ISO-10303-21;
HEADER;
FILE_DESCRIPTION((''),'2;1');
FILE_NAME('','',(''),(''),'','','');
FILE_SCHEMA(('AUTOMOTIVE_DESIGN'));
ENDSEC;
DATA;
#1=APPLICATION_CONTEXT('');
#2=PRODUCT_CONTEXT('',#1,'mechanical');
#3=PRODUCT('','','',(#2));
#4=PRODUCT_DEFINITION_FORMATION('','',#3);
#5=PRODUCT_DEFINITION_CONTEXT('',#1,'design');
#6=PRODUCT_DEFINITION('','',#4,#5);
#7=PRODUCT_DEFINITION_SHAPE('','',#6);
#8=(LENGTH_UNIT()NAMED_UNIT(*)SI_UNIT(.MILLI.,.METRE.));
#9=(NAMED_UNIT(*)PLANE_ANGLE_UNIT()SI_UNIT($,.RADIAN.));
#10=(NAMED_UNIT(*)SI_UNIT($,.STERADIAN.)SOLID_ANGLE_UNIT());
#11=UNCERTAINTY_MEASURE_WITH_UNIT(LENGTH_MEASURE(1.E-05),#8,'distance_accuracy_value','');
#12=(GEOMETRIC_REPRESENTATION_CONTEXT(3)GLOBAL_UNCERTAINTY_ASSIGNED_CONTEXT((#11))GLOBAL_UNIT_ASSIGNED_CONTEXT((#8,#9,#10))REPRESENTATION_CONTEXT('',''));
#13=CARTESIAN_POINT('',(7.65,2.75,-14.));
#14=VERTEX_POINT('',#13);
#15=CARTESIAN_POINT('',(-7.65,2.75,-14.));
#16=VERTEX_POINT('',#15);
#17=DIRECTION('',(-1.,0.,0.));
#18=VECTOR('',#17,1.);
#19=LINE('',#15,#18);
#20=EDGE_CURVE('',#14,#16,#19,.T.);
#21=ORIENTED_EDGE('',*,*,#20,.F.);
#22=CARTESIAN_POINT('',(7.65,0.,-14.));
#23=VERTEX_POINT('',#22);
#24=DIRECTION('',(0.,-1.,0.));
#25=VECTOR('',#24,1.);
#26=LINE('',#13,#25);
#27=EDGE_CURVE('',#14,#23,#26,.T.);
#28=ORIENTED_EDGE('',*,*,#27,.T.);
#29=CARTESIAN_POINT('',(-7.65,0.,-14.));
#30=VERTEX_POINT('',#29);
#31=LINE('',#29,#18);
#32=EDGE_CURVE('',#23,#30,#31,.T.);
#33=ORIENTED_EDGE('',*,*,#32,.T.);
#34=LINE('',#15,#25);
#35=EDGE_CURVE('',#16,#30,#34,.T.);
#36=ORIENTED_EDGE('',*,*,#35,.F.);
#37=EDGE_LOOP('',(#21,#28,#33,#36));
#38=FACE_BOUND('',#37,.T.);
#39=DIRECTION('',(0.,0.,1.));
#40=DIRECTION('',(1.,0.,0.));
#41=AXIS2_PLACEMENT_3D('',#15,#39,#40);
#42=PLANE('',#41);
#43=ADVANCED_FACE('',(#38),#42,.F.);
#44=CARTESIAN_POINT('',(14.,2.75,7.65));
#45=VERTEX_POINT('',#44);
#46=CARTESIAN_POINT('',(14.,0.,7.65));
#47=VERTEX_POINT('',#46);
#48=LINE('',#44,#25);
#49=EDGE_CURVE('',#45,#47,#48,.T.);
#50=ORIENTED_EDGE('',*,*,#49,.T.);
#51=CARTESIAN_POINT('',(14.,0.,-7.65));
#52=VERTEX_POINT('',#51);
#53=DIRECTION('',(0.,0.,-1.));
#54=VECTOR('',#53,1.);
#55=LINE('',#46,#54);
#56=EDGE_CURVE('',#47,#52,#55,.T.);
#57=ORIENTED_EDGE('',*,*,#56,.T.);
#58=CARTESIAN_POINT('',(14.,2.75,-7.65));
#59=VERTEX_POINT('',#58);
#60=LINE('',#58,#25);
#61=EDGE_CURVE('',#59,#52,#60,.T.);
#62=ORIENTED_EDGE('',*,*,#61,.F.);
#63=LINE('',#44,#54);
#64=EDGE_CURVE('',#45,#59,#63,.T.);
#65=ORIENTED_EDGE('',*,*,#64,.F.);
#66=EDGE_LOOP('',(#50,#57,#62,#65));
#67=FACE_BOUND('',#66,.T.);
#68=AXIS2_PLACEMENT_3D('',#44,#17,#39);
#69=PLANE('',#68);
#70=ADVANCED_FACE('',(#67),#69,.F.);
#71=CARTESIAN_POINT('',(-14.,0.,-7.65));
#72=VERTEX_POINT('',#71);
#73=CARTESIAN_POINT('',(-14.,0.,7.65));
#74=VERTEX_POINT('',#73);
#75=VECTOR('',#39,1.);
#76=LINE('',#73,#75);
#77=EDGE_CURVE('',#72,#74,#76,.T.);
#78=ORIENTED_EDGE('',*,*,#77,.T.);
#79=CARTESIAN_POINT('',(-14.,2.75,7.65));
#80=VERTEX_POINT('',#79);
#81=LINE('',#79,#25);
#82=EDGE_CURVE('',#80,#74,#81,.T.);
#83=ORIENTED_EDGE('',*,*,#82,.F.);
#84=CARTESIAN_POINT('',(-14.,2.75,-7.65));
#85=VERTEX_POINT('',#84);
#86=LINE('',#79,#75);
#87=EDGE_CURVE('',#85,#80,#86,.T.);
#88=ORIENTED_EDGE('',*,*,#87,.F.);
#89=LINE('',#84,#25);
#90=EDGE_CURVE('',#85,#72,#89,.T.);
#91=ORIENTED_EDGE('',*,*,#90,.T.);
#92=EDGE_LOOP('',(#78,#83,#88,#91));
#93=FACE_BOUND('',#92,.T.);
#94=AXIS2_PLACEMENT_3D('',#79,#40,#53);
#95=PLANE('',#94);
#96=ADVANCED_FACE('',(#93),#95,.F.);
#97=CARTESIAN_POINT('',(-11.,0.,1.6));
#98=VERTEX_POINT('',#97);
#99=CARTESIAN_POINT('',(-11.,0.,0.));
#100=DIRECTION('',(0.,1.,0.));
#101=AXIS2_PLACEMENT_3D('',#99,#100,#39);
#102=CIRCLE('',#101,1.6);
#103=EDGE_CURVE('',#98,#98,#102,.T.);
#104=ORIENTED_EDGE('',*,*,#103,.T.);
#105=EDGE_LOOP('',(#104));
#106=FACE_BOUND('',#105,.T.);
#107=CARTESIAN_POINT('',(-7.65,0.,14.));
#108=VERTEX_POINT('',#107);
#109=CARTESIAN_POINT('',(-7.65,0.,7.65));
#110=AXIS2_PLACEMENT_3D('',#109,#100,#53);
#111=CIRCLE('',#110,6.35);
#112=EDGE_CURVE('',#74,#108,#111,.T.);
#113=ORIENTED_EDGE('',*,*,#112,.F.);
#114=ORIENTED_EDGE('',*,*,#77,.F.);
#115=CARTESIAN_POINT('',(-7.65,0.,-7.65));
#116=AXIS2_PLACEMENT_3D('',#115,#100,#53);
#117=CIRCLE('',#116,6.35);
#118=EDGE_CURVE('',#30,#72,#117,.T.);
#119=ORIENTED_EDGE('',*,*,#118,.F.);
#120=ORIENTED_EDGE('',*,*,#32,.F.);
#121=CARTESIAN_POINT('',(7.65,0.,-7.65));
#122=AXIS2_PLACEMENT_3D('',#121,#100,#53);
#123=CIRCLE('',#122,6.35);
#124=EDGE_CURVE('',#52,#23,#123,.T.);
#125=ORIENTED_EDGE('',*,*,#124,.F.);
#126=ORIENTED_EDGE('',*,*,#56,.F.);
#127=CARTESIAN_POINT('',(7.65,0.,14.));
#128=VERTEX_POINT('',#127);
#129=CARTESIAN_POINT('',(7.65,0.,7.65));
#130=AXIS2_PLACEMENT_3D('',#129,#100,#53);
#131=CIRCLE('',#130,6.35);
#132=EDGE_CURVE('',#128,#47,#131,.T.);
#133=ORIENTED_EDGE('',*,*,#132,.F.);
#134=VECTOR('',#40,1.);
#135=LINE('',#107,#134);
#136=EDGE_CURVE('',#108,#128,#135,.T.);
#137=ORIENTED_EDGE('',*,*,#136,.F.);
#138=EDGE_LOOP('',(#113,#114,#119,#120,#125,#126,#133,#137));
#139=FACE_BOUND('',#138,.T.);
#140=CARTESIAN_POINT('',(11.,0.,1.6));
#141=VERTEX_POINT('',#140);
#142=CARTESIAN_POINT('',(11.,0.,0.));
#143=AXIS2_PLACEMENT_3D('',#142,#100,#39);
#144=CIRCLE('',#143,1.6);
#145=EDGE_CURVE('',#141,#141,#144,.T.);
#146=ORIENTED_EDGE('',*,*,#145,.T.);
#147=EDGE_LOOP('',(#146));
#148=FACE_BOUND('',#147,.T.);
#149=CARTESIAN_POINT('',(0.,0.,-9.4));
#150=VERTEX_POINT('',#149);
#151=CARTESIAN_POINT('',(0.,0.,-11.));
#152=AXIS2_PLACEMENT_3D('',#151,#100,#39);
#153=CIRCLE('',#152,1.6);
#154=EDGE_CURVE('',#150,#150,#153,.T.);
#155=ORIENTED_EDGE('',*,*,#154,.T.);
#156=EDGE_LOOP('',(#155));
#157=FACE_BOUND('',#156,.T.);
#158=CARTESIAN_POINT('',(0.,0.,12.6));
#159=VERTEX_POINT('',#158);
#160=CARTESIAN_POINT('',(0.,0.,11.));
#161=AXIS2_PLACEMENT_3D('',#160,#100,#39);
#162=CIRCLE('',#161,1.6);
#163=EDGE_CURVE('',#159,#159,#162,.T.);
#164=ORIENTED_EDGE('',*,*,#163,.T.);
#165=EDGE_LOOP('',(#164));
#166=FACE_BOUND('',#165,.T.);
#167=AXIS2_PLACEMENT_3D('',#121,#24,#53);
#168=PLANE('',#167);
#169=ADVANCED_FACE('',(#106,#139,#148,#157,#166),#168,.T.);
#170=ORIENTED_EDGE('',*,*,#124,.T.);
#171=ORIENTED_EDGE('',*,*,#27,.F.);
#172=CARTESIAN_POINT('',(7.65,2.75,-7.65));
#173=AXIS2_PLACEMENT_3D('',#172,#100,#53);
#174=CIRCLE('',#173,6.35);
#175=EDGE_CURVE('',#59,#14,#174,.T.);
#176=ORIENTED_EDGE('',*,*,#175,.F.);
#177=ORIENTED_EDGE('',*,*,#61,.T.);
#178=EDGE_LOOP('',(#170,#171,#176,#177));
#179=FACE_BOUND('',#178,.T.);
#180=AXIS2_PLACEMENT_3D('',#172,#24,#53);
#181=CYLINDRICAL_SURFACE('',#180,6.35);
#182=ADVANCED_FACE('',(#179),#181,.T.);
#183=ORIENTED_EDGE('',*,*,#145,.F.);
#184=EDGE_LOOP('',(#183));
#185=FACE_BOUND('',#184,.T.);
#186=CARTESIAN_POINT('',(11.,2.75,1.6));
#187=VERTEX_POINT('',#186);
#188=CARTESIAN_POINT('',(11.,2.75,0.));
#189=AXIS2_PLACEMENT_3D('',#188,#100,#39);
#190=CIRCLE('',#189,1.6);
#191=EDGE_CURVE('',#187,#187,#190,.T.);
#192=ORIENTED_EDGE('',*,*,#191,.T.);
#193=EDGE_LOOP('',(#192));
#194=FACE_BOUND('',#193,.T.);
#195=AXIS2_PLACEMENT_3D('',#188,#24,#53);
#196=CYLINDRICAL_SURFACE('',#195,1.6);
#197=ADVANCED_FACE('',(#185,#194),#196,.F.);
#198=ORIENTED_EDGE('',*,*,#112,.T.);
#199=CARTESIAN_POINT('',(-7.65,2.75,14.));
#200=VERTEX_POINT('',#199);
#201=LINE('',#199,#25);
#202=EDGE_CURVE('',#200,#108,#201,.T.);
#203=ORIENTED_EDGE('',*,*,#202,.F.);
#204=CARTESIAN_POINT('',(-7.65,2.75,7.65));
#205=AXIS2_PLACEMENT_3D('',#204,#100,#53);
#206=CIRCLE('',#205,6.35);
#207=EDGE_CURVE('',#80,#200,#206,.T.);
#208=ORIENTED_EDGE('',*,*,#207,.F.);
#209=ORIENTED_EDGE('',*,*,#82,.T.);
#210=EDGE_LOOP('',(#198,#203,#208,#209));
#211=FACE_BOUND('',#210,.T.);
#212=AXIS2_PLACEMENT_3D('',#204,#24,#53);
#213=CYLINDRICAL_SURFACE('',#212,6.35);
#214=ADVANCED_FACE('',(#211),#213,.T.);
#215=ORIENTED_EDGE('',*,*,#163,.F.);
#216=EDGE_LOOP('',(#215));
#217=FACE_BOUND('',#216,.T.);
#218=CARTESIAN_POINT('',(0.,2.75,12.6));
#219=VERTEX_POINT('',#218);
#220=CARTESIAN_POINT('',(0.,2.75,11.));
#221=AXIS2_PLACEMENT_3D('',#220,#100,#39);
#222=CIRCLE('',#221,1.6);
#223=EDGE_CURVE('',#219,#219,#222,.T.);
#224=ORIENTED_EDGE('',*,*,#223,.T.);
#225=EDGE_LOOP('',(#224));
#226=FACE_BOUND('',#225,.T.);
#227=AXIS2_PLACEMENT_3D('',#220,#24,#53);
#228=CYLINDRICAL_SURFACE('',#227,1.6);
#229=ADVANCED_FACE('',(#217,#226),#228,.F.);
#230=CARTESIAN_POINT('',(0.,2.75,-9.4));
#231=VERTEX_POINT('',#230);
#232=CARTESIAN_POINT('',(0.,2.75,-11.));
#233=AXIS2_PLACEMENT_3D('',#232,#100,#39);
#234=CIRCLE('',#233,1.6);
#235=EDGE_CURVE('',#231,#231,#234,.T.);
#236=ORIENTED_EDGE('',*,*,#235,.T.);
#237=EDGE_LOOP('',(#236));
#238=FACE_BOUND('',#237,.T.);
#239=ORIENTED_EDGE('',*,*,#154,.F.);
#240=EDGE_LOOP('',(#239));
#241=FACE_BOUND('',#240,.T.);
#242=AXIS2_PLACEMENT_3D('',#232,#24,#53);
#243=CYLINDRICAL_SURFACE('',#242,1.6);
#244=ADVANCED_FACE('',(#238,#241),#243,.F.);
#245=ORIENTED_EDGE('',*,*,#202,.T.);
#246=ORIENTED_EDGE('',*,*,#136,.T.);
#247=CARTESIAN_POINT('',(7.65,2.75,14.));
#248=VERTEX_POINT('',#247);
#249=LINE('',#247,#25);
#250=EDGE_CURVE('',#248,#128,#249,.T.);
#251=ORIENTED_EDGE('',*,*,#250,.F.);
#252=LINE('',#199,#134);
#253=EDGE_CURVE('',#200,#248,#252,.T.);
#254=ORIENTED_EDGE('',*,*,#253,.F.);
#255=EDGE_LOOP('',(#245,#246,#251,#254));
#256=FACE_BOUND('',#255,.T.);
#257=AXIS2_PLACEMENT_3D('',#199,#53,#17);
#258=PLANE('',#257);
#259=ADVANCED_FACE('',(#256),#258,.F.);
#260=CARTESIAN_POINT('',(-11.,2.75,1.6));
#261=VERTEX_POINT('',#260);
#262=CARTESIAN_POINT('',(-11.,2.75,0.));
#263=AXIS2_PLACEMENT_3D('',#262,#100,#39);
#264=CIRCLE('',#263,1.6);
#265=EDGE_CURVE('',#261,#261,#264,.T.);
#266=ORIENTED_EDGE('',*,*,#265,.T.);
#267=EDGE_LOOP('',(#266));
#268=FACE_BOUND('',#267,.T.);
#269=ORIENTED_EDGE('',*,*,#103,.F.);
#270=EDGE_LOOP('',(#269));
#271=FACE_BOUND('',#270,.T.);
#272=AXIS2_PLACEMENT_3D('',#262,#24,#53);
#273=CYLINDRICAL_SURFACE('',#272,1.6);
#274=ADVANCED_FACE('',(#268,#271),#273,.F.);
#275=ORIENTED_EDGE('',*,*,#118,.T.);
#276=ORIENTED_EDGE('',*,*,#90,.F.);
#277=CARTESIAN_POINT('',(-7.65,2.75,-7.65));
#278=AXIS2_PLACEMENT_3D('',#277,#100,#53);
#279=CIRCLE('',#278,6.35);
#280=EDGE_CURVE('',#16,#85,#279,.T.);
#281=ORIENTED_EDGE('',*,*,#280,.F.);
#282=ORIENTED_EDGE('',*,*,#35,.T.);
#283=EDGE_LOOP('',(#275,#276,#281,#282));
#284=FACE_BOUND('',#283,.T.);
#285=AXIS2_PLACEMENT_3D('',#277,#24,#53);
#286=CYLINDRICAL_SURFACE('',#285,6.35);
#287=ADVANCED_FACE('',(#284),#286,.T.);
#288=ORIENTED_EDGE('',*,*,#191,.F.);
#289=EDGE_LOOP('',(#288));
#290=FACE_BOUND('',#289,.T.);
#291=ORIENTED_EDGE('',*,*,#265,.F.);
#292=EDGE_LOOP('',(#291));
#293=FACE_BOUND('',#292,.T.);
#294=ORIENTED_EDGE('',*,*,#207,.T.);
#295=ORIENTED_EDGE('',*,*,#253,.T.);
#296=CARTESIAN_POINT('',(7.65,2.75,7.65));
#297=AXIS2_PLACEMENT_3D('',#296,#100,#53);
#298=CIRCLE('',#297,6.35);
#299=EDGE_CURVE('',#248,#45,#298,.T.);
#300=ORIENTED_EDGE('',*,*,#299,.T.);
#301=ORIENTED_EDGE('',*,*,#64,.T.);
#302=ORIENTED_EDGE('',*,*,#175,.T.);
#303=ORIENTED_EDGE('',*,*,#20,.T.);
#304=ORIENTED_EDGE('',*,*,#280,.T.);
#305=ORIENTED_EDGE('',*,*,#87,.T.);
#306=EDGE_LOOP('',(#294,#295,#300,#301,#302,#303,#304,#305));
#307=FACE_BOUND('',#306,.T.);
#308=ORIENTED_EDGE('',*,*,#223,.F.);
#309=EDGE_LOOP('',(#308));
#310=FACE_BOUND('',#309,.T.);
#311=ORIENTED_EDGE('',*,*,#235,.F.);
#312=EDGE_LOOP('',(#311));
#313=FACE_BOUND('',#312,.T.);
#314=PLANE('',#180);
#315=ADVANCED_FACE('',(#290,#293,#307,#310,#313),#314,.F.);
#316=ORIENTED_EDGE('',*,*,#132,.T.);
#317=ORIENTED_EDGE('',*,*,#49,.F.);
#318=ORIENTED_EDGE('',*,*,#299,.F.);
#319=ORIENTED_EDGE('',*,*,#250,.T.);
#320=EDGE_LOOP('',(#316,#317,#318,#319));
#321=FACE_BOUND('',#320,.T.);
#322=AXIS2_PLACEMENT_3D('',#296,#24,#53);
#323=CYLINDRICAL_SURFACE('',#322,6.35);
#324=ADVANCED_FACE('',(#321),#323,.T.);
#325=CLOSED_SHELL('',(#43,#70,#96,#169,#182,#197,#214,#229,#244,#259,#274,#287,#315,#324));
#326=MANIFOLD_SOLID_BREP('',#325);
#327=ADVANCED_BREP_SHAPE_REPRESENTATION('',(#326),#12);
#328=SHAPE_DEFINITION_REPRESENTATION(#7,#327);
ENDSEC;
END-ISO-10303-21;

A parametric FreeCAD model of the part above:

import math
import FreeCAD as App
import Part
import Sketcher

doc = App.newDocument("Part")
body = doc.addObject("PartDesign::Body", "Body")

sketch1 = doc.addObject("Sketcher::SketchObject", "Sketch")
body.addObject(sketch1)
sketch1.AttachmentSupport = (doc.XZ_Plane, [""])
sketch1.MapMode = "FlatFace"
sketch1.addGeometry(Part.LineSegment(App.Vector(-7.7, 14, 0), App.Vector(7.7, 14, 0)), False)
sketch1.addGeometry(Part.ArcOfCircle(Part.Circle(App.Vector(7.7, 7.7, 0), App.Vector(0, 0, 1), 6.3), math.radians(0), math.radians(90)), False)
sketch1.addGeometry(Part.LineSegment(App.Vector(14, 7.7, 0), App.Vector(14, -7.7, 0)), False)
sketch1.addGeometry(Part.ArcOfCircle(Part.Circle(App.Vector(7.7, -7.7, 0), App.Vector(0, 0, 1), 6.3), math.radians(-90), math.radians(0)), False)
sketch1.addGeometry(Part.LineSegment(App.Vector(7.7, -14, 0), App.Vector(-7.7, -14, 0)), False)
sketch1.addGeometry(Part.ArcOfCircle(Part.Circle(App.Vector(-7.7, -7.7, 0), App.Vector(0, 0, 1), 6.3), math.radians(180), math.radians(270)), False)
sketch1.addGeometry(Part.LineSegment(App.Vector(-14, -7.7, 0), App.Vector(-14, 7.7, 0)), False)
sketch1.addGeometry(Part.ArcOfCircle(Part.Circle(App.Vector(-7.7, 7.7, 0), App.Vector(0, 0, 1), 6.3), math.radians(90), math.radians(180)), False)
sketch1.addGeometry(Part.Circle(App.Vector(0, 11, 0), App.Vector(0, 0, 1), 1.6), False)
sketch1.addGeometry(Part.Circle(App.Vector(-11, 0, 0), App.Vector(0, 0, 1), 1.6), False)
sketch1.addGeometry(Part.Circle(App.Vector(11, 0, 0), App.Vector(0, 0, 1), 1.6), False)
sketch1.addGeometry(Part.Circle(App.Vector(0, -11, 0), App.Vector(0, 0, 1), 1.6), False)
sketch1.addConstraint(Sketcher.Constraint("Tangent", 0, 2, 1, 2))
sketch1.addConstraint(Sketcher.Constraint("Tangent", 1, 1, 2, 1))
sketch1.addConstraint(Sketcher.Constraint("Tangent", 2, 2, 3, 2))
sketch1.addConstraint(Sketcher.Constraint("Tangent", 3, 1, 4, 1))
sketch1.addConstraint(Sketcher.Constraint("Tangent", 4, 2, 5, 2))
sketch1.addConstraint(Sketcher.Constraint("Tangent", 5, 1, 6, 1))
sketch1.addConstraint(Sketcher.Constraint("Tangent", 6, 2, 7, 2))
sketch1.addConstraint(Sketcher.Constraint("Tangent", 7, 1, 0, 1))
sketch1.addConstraint(Sketcher.Constraint("Horizontal", 0))
sketch1.addConstraint(Sketcher.Constraint("Vertical", 2))
sketch1.addConstraint(Sketcher.Constraint("Horizontal", 4))
sketch1.addConstraint(Sketcher.Constraint("Vertical", 6))
sketch1.addConstraint(Sketcher.Constraint("Equal", 1, 3))
sketch1.addConstraint(Sketcher.Constraint("Equal", 3, 5))
sketch1.addConstraint(Sketcher.Constraint("Equal", 5, 7))
sketch1.addConstraint(Sketcher.Constraint("Equal", 8, 9))
sketch1.addConstraint(Sketcher.Constraint("Equal", 9, 10))
sketch1.addConstraint(Sketcher.Constraint("Equal", 10, 11))
sketch1.addConstraint(Sketcher.Constraint("Symmetric", 1, 3, 5, 3, -1, 1))
sketch1.addConstraint(Sketcher.Constraint("Symmetric", 9, 3, 10, 3, -1, 1))
sketch1.addConstraint(Sketcher.Constraint("Symmetric", 8, 3, 11, 3, -1, 1))
sketch1.addConstraint(Sketcher.Constraint("PointOnObject", 8, 3, -2))
sketch1.addConstraint(Sketcher.Constraint("PointOnObject", 9, 3, -1))
sketch1.addConstraint(Sketcher.Constraint("Equal", 4, 2))
sketch1.addConstraint(Sketcher.Constraint("Diameter", 8, 3.2))
sketch1.addConstraint(Sketcher.Constraint("Radius", 1, 6.35))
sketch1.addConstraint(Sketcher.Constraint("DistanceX", 0, 1, 0, 2, 15.3))
sketch1.addConstraint(Sketcher.Constraint("DistanceY", -1, 1, 8, 3, 11.0))
sketch1.addConstraint(Sketcher.Constraint("DistanceX", 9, 3, -1, 1, 11.0))
pad1 = doc.addObject("PartDesign::Pad", "Pad")
body.addObject(pad1)
pad1.Profile = sketch1
pad1.Length = 2.75
pad1.Reversed = True

doc.recompute()
